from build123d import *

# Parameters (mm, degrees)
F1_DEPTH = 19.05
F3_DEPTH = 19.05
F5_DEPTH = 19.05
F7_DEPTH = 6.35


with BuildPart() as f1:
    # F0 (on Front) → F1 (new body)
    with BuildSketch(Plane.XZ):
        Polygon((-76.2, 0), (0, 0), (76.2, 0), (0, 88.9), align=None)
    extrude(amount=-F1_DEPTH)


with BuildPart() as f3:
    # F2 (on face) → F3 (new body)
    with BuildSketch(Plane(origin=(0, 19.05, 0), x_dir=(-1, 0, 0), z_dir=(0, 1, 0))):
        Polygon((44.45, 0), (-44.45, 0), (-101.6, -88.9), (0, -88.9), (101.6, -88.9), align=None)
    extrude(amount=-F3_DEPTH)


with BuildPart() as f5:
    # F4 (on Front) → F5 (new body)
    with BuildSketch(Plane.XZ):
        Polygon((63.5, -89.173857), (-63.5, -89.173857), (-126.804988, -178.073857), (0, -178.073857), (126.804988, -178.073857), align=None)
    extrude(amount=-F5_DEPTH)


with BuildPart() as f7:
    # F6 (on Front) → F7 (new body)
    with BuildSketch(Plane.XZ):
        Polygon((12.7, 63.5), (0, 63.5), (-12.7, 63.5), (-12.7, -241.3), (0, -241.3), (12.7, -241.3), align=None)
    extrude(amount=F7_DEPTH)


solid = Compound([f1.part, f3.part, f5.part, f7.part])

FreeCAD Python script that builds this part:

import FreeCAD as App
import Part
import Sketcher

V = App.Vector
Q = App.Units.Quantity


def add_polygon(sketch, points):
    """Adds a closed chain of lines whose ends are joined by coincident constraints."""
    first, n = sketch.GeometryCount, len(points)
    for a, b in zip(points, points[1:] + points[:1]):
        sketch.addGeometry(Part.LineSegment(App.Vector(*a, 0), App.Vector(*b, 0)), False)
    for i in range(n):
        sketch.addConstraint(Sketcher.Constraint("Coincident", first + i, 2, first + (i + 1) % n, 1))

doc = App.newDocument("Part")
body = doc.addObject("PartDesign::Body", "Body")

# Sketch on XZ plane
sketch1 = body.newObject("Sketcher::SketchObject", "Sketch")
sketch1.AttachmentSupport = (doc.getObject("XZ_Plane"), [""])
sketch1.MapMode = "FlatFace"
add_polygon(sketch1, [(-76, 0), (76, 0), (0, 89)])  # lines 0-2
sketch1.addConstraint(Sketcher.Constraint("Horizontal", 0))
sketch1.addConstraint(Sketcher.Constraint("Symmetric", 0, 2, 2, 2, -1, 1))
sketch1.addConstraint(Sketcher.Constraint("PointOnObject", 1, 2, -2))
sketch1.addConstraint(Sketcher.Constraint("DistanceX", 0, 1, 0, 2, Q("6 in")))
sketch1.addConstraint(Sketcher.Constraint("DistanceY", -1, 1, 1, 2, Q("3.5 in")))
pad1 = body.newObject("PartDesign::Pad", "Pad")
pad1.Profile = sketch1
pad1.Length = Q("0.75 in")
pad1.Reversed = True
body2 = doc.addObject("PartDesign::Body", "Body001")

# Sketch on XZ plane
sketch2 = body2.newObject("Sketcher::SketchObject", "Sketch001")
sketch2.AttachmentSupport = (doc.getObject("XZ_Plane001"), [""])
sketch2.MapMode = "FlatFace"
sketch2.AttachmentOffset = App.Placement(V(0, 0, -0.75 * 25.4), App.Rotation())
add_polygon(sketch2, [(-44, 0), (44, 0), (102, -89), (-102, -89)])  # lines 0-3
sketch2.addConstraint(Sketcher.Constraint("Horizontal", 0))
sketch2.addConstraint(Sketcher.Constraint("Horizontal", 2))
sketch2.addConstraint(Sketcher.Constraint("Symmetric", 0, 2, 3, 2, -1, 1))
sketch2.addConstraint(Sketcher.Constraint("Equal", 1, 3))
sketch2.addConstraint(Sketcher.Constraint("DistanceX", 2, 2, 2, 1, Q("8 in")))
sketch2.addConstraint(Sketcher.Constraint("DistanceX", 0, 1, 0, 2, Q("3.5 in")))
sketch2.addConstraint(Sketcher.Constraint("DistanceY", 1, 2, -1, 1, Q("3.5 in")))
pad2 = body2.newObject("PartDesign::Pad", "Pad001")
pad2.Profile = sketch2
pad2.Length = Q("0.75 in")
body3 = doc.addObject("PartDesign::Body", "Body002")

# Sketch on XZ plane
sketch3 = body3.newObject("Sketcher::SketchObject", "Sketch002")
sketch3.AttachmentSupport = (doc.getObject("XZ_Plane002"), [""])
sketch3.MapMode = "FlatFace"
add_polygon(sketch3, [(64, -89), (-64, -89), (-127, -178), (127, -178)])  # lines 0-3
sketch3.addConstraint(Sketcher.Constraint("Horizontal", 0))
sketch3.addConstraint(Sketcher.Constraint("Horizontal", 2))
sketch3.addConstraint(Sketcher.Constraint("Equal", 1, 3))
sketch3.addConstraint(Sketcher.Constraint("DistanceX", 0, 2, 0, 1, Q("5 in")))
sketch3.addConstraint(Sketcher.Constraint("DistanceX", 0, 2, -1, 1, Q("2.5 in")))
sketch3.addConstraint(Sketcher.Constraint("DistanceY", 1, 2, 0, 2, Q("3.5 in")))
sketch3.addConstraint(Sketcher.Constraint("DistanceX", 2, 1, 2, 2, 253.609976))
sketch3.addConstraint(Sketcher.Constraint("DistanceY", 0, 2, -1, 1, 89.173857))
pad3 = body3.newObject("PartDesign::Pad", "Pad002")
pad3.Profile = sketch3
pad3.Length = Q("0.75 in")
pad3.Reversed = True
body4 = doc.addObject("PartDesign::Body", "Body003")

# Sketch on XZ plane
sketch4 = body4.newObject("Sketcher::SketchObject", "Sketch003")
sketch4.AttachmentSupport = (doc.getObject("XZ_Plane003"), [""])
sketch4.MapMode = "FlatFace"
add_polygon(sketch4, [(13, 64), (-13, 64), (-13, -241), (13, -241)])  # lines 0-3
sketch4.addConstraint(Sketcher.Constraint("Horizontal", 0))
sketch4.addConstraint(Sketcher.Constraint("Vertical", 1))
sketch4.addConstraint(Sketcher.Constraint("Horizontal", 2))
sketch4.addConstraint(Sketcher.Constraint("Vertical", 3))
sketch4.addConstraint(Sketcher.Constraint("DistanceX", 0, 2, 0, 1, Q("1 in")))
sketch4.addConstraint(Sketcher.Constraint("DistanceY", 1, 2, 1, 1, Q("12 in")))
sketch4.addConstraint(Sketcher.Constraint("DistanceX", 0, 2, -1, 1, Q("0.5 in")))
sketch4.addConstraint(Sketcher.Constraint("DistanceY", -1, 1, 0, 2, Q("2.5 in")))
pad4 = body4.newObject("PartDesign::Pad", "Pad003")
pad4.Profile = sketch4
pad4.Length = Q("0.25 in")

doc.recompute()
